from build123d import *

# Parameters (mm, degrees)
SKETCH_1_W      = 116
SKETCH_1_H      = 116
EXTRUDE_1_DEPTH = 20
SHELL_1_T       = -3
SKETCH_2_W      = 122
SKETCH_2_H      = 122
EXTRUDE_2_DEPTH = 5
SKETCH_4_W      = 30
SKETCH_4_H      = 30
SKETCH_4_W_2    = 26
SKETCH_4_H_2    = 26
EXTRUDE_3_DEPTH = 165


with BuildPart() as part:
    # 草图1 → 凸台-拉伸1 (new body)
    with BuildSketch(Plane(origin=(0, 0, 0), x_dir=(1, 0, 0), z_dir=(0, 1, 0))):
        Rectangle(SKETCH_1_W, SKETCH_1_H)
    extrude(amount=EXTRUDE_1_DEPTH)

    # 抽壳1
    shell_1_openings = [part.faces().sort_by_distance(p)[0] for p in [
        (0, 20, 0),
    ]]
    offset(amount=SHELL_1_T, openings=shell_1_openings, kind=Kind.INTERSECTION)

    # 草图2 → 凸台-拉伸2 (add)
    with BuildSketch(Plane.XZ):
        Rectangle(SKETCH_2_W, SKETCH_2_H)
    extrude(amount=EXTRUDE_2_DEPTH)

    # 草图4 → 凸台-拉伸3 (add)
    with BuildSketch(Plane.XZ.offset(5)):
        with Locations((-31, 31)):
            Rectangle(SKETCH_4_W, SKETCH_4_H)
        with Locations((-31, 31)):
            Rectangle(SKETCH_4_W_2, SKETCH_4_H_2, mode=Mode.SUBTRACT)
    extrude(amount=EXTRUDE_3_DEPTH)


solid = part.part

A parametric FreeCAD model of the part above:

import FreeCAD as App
import Part
import Sketcher
from FreeCAD import Vector


def faces_at(feature, points):
    """Names of the faces that lie closest to the given points."""
    faces = feature.Shape.Faces
    near = lambda p: min(range(len(faces)), key=lambda i: faces[i].distToShape(Part.Vertex(*p))[0])
    return sorted({f"Face{near(p) + 1}" for p in points})

doc = App.newDocument("Part")
body = doc.addObject("PartDesign::Body", "Body")

sketch1 = doc.addObject("Sketcher::SketchObject", "Sketch")
body.addObject(sketch1)
sketch1.AttachmentSupport = (doc.XZ_Plane, [""])
sketch1.MapMode = "FlatFace"
sketch1.addGeometry([
    Part.LineSegment(Vector(-58, -58, 0), Vector(-58, 58, 0)),
    Part.LineSegment(Vector(-58, 58, 0), Vector(58, 58, 0)),
    Part.LineSegment(Vector(58, 58, 0), Vector(58, -58, 0)),
    Part.LineSegment(Vector(58, -58, 0), Vector(-58, -58, 0)),
], False)
sketch1.addConstraint([
    Sketcher.Constraint("Coincident", 0, 2, 1, 1),
    Sketcher.Constraint("Coincident", 1, 2, 2, 1),
    Sketcher.Constraint("Coincident", 2, 2, 3, 1),
    Sketcher.Constraint("Coincident", 3, 2, 0, 1),
    Sketcher.Constraint("Vertical", 0),
    Sketcher.Constraint("Horizontal", 1),
    Sketcher.Constraint("Vertical", 2),
    Sketcher.Constraint("Horizontal", 3),
    Sketcher.Constraint("Symmetric", 0, 2, 2, 2, -1, 1),
    Sketcher.Constraint("Equal", 3, 0),
    Sketcher.Constraint("DistanceX", 1, 1, 1, 2, 116.0),
])
pad1 = doc.addObject("PartDesign::Pad", "Pad")
body.addObject(pad1)
pad1.Profile = sketch1
pad1.Length = 20
pad1.Reversed = True
doc.recompute()

thickness = doc.addObject("PartDesign::Thickness", "Thickness")
body.addObject(thickness)
thickness.Base = (pad1, faces_at(pad1, [(0, 20, 0)]))
thickness.Value = 3
thickness.Reversed = True
thickness.Join = "Intersection"

sketch2 = doc.addObject("Sketcher::SketchObject", "Sketch001")
body.addObject(sketch2)
sketch2.AttachmentSupport = (doc.XZ_Plane, [""])
sketch2.MapMode = "FlatFace"
sketch2.addGeometry([
    Part.LineSegment(Vector(-61, 61, 0), Vector(-61, -61, 0)),
    Part.LineSegment(Vector(-61, -61, 0), Vector(61, -61, 0)),
    Part.LineSegment(Vector(61, -61, 0), Vector(61, 61, 0)),
    Part.LineSegment(Vector(61, 61, 0), Vector(-61, 61, 0)),
], False)
sketch2.addConstraint([
    Sketcher.Constraint("Coincident", 0, 2, 1, 1),
    Sketcher.Constraint("Coincident", 1, 2, 2, 1),
    Sketcher.Constraint("Coincident", 2, 2, 3, 1),
    Sketcher.Constraint("Coincident", 3, 2, 0, 1),
    Sketcher.Constraint("Vertical", 0),
    Sketcher.Constraint("Horizontal", 1),
    Sketcher.Constraint("Vertical", 2),
    Sketcher.Constraint("Horizontal", 3),
    Sketcher.Constraint("Symmetric", 0, 2, 2, 2, -1, 1),
    Sketcher.Constraint("Equal", 3, 0),
    Sketcher.Constraint("DistanceX", 1, 1, 1, 2, 122.0),
])
pad2 = doc.addObject("PartDesign::Pad", "Pad001")
body.addObject(pad2)
pad2.Profile = sketch2
pad2.Length = 5

sketch3 = doc.addObject("Sketcher::SketchObject", "Sketch002")
body.addObject(sketch3)
sketch3.AttachmentSupport = (doc.XZ_Plane, [""])
sketch3.MapMode = "FlatFace"
sketch3.AttachmentOffset = App.Placement(Vector(0, 0, 5), App.Rotation())
sketch3.addGeometry([
    Part.LineSegment(Vector(-46, 46, 0), Vector(-46, 16, 0)),
    Part.LineSegment(Vector(-46, 16, 0), Vector(-16, 16, 0)),
    Part.LineSegment(Vector(-16, 16, 0), Vector(-16, 46, 0)),
    Part.LineSegment(Vector(-16, 46, 0), Vector(-46, 46, 0)),
    Part.LineSegment(Vector(-18, 18, 0), Vector(-44, 18, 0)),
    Part.LineSegment(Vector(-44, 18, 0), Vector(-44, 44, 0)),
    Part.LineSegment(Vector(-44, 44, 0), Vector(-18, 44, 0)),
    Part.LineSegment(Vector(-18, 44, 0), Vector(-18, 18, 0)),
], False)
sketch3.addConstraint([
    Sketcher.Constraint("Coincident", 0, 2, 1, 1),
    Sketcher.Constraint("Coincident", 1, 2, 2, 1),
    Sketcher.Constraint("Coincident", 2, 2, 3, 1),
    Sketcher.Constraint("Coincident", 3, 2, 0, 1),
    Sketcher.Constraint("Coincident", 4, 2, 5, 1),
    Sketcher.Constraint("Coincident", 5, 2, 6, 1),
    Sketcher.Constraint("Coincident", 6, 2, 7, 1),
    Sketcher.Constraint("Coincident", 7, 2, 4, 1),
    Sketcher.Constraint("Vertical", 0),
    Sketcher.Constraint("Horizontal", 1),
    Sketcher.Constraint("Vertical", 2),
    Sketcher.Constraint("Horizontal", 3),
    Sketcher.Constraint("Horizontal", 4),
    Sketcher.Constraint("Vertical", 5),
    Sketcher.Constraint("Horizontal", 6),
    Sketcher.Constraint("Vertical", 7),
    Sketcher.Constraint("Equal", 3, 0),
    Sketcher.Constraint("Equal", 6, 5),
    Sketcher.Constraint("DistanceX", 1, 1, 1, 2, 30.0),
    Sketcher.Constraint("DistanceX", 4, 2, 4, 1, 26.0),
    Sketcher.Constraint("DistanceX", 0, 2, -1, 1, 46.0),
    Sketcher.Constraint("DistanceY", -1, 1, 0, 2, 16.0),
    Sketcher.Constraint("DistanceX", 4, 2, -1, 1, 44.0),
    Sketcher.Constraint("DistanceY", -1, 1, 4, 2, 18.0),
])
pad3 = doc.addObject("PartDesign::Pad", "Pad002")
body.addObject(pad3)
pad3.Profile = sketch3
pad3.Length = 165

doc.recompute()
